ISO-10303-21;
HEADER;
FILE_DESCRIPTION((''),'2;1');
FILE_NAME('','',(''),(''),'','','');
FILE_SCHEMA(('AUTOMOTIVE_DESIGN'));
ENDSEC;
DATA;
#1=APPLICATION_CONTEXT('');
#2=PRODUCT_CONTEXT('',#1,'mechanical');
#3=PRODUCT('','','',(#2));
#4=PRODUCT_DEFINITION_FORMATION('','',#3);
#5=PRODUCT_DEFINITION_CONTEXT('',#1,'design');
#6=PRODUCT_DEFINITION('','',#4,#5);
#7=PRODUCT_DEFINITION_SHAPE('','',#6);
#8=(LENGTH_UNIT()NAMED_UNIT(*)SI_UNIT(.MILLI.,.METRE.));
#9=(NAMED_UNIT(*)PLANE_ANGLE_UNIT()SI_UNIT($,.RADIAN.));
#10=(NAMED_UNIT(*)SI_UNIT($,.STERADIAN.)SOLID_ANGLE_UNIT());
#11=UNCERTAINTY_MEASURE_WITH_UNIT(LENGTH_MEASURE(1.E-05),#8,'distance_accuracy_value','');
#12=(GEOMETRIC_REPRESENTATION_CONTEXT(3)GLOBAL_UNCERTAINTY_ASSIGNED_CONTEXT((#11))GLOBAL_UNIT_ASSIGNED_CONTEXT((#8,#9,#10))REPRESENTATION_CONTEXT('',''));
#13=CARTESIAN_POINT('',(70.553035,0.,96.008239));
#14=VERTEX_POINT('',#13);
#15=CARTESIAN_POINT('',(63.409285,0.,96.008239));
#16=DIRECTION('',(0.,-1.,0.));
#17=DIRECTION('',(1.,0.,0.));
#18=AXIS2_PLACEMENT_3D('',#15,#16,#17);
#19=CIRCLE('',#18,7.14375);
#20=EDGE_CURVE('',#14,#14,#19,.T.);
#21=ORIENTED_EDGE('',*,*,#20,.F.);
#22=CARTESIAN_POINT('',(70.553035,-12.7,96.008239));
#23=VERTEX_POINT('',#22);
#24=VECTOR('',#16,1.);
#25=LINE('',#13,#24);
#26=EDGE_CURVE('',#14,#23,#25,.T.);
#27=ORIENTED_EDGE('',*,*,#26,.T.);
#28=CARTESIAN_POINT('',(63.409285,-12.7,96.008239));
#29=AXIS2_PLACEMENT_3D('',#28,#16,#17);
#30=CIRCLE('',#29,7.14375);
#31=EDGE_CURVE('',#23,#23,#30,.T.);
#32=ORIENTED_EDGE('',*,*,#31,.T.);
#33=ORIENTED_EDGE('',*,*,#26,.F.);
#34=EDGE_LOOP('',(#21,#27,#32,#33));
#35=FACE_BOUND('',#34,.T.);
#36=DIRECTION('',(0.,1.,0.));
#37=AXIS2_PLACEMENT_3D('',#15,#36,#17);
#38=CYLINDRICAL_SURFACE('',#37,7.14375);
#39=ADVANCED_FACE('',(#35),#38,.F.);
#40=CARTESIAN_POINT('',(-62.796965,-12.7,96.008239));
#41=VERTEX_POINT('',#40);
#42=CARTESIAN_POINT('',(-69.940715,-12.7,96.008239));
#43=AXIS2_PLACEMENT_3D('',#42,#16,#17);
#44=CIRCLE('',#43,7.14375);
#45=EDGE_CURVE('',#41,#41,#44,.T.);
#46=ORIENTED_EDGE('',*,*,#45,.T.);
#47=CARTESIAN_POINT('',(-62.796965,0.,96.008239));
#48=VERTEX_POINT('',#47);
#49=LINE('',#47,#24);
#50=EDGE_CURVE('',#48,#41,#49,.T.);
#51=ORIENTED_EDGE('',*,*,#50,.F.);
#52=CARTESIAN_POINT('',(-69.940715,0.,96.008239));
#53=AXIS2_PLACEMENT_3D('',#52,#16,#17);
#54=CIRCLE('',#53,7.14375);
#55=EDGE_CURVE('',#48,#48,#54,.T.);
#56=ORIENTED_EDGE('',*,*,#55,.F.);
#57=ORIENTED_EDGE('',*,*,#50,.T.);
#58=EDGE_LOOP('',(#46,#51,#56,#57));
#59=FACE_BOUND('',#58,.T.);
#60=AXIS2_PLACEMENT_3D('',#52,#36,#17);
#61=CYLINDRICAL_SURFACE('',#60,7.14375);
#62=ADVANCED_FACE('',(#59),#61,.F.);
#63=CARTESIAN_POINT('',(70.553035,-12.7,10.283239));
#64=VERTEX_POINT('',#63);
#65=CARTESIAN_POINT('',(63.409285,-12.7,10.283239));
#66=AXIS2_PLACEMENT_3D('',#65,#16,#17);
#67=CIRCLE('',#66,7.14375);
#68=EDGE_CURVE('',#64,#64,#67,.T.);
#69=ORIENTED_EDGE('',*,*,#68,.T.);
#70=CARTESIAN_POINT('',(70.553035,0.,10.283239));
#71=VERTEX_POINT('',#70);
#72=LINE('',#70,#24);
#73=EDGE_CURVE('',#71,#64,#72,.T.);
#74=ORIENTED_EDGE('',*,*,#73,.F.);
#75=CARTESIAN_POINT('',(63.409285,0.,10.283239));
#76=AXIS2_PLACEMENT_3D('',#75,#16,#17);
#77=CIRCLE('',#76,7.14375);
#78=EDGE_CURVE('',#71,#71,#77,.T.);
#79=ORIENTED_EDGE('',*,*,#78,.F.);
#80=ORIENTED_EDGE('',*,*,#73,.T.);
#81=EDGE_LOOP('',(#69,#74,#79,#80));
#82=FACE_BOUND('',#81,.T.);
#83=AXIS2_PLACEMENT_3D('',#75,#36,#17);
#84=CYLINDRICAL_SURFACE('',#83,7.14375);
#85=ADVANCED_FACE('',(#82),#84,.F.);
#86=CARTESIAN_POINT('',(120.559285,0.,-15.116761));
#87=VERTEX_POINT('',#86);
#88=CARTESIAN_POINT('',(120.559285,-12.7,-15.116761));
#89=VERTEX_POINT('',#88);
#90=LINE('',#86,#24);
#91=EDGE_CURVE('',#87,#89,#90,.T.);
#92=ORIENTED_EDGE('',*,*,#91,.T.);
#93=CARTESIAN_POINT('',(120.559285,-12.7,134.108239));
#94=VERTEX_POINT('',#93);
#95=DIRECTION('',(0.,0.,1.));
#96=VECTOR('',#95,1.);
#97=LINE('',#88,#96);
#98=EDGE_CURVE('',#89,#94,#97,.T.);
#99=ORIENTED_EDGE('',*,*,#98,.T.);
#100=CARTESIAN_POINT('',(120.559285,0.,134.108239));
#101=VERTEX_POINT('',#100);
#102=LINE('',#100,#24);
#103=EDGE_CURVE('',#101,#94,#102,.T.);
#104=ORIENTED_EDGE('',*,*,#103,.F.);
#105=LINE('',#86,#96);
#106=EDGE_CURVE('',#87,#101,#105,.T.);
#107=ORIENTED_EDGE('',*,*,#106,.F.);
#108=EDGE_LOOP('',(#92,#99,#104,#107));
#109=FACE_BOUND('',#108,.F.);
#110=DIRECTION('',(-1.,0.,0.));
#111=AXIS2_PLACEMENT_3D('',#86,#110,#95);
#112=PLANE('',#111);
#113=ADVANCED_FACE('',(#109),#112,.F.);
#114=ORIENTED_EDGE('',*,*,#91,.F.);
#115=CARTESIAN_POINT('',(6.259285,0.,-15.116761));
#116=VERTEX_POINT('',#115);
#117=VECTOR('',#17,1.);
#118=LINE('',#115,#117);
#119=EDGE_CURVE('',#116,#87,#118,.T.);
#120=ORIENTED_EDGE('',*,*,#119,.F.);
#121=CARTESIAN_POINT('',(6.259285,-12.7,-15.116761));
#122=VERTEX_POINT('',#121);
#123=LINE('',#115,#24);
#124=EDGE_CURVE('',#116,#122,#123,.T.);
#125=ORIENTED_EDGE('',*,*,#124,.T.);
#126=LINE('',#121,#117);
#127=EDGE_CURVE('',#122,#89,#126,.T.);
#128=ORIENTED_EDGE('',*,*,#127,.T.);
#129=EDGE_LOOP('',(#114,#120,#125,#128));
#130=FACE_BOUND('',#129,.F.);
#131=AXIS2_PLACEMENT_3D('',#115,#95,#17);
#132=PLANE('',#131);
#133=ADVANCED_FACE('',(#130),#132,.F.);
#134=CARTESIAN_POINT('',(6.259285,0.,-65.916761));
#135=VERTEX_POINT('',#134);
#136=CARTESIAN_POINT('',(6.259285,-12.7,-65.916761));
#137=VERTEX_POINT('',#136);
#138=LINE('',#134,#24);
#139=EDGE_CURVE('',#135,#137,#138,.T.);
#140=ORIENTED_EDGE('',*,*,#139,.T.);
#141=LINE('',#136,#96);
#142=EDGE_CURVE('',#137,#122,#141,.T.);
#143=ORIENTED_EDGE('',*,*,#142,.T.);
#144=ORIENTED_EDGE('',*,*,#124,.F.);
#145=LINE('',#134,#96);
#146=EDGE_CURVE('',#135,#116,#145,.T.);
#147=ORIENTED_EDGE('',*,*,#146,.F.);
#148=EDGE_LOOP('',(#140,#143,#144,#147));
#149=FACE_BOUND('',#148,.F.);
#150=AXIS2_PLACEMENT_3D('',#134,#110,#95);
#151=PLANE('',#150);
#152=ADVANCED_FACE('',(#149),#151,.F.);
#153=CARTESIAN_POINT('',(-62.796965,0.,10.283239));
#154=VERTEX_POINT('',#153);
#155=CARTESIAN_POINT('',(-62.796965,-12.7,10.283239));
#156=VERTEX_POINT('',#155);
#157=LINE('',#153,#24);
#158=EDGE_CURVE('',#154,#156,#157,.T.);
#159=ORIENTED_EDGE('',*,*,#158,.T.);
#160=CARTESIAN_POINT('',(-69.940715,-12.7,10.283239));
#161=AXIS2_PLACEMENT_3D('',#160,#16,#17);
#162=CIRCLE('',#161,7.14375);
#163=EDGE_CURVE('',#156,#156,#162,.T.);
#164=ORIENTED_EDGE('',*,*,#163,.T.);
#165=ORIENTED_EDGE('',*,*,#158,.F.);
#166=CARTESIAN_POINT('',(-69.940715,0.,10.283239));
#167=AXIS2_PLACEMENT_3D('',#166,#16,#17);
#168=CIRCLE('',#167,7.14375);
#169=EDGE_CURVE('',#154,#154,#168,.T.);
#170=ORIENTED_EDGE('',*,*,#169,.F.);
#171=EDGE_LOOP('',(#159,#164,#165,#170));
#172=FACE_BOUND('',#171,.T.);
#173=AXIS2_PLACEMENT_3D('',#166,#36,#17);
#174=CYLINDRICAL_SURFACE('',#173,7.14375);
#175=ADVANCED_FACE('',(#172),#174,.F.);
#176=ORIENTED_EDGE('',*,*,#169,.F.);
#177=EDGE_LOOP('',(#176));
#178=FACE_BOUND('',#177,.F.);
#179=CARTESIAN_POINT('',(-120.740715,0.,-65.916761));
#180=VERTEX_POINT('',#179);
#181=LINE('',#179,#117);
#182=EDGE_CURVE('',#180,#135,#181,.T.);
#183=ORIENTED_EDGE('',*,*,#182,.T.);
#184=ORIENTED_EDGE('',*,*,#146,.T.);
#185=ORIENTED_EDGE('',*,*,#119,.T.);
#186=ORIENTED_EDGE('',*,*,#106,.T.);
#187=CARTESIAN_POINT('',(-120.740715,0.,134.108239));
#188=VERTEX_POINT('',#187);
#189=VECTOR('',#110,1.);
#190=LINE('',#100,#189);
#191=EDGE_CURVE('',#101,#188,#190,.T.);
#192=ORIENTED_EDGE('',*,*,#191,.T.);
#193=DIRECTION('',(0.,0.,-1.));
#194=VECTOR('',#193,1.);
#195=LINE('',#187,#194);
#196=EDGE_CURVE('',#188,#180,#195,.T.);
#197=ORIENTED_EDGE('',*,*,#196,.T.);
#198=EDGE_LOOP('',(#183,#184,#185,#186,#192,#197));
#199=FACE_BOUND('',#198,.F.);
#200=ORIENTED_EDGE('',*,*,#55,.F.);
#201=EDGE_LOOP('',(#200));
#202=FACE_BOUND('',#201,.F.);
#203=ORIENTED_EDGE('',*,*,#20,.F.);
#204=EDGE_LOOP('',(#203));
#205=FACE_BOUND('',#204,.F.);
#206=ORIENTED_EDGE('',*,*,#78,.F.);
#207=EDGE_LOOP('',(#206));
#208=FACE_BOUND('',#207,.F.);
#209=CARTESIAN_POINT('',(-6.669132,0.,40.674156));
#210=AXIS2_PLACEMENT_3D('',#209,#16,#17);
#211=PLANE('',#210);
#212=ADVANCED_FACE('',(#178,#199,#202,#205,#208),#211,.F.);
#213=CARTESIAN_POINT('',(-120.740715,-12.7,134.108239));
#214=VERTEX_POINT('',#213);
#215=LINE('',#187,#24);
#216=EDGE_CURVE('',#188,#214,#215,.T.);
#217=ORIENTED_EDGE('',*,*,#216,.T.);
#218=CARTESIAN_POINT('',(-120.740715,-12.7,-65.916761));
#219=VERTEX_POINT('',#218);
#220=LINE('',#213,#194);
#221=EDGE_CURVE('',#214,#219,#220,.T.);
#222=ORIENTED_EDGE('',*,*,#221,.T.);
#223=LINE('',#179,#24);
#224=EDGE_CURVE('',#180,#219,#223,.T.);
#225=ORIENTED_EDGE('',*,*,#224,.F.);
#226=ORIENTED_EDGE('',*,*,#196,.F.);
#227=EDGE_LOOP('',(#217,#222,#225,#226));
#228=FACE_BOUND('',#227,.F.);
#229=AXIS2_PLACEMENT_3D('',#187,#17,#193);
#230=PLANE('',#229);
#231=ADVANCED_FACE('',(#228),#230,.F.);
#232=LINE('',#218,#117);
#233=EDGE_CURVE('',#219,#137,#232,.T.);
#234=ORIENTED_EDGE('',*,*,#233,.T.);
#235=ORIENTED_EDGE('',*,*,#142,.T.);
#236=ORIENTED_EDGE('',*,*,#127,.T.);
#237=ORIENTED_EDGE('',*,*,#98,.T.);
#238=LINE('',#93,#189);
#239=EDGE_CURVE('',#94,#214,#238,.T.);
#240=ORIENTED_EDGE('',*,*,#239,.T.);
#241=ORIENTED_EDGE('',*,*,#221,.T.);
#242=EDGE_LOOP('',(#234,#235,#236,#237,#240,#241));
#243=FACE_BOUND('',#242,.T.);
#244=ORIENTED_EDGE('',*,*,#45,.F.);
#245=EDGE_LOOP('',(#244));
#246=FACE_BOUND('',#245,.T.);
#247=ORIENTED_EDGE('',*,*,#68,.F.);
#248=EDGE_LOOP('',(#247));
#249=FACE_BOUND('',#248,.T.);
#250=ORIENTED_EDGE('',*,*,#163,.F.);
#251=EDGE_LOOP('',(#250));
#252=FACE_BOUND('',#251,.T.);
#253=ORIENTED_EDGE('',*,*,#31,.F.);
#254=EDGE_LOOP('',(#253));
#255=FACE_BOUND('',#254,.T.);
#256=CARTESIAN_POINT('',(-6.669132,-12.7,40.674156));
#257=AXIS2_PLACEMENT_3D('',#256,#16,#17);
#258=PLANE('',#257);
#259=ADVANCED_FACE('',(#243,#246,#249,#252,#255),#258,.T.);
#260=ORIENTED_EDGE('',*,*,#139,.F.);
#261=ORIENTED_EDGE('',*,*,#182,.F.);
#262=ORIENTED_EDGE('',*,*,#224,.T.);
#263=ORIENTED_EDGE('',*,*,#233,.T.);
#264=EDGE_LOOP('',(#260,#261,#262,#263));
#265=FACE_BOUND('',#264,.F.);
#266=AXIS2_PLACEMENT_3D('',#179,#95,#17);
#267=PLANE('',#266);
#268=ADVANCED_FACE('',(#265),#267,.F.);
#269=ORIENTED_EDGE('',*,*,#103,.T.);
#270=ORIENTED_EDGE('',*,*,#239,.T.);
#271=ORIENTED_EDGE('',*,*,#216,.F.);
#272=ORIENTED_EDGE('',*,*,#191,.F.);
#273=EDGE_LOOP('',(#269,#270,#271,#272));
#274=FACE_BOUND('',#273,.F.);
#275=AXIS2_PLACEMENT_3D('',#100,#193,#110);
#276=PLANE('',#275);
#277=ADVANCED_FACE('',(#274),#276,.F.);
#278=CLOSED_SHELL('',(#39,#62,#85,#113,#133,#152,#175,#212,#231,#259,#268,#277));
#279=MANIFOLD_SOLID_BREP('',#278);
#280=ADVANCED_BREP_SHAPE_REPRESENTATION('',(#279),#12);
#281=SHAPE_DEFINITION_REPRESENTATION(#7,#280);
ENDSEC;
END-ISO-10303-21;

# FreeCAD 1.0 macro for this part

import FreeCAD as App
import Part
import Sketcher
from FreeCAD import Vector
Q = App.Units.Quantity


def add_polygon(sketch, points):
    """Adds a closed chain of lines whose ends are joined by coincident constraints."""
    first, n = sketch.GeometryCount, len(points)
    for a, b in zip(points, points[1:] + points[:1]):
        sketch.addGeometry(Part.LineSegment(App.Vector(*a, 0), App.Vector(*b, 0)), False)
    for i in range(n):
        sketch.addConstraint(Sketcher.Constraint("Coincident", first + i, 2, first + (i + 1) % n, 1))

doc = App.newDocument("Part")
body = doc.addObject("PartDesign::Body", "Body")

sketch1 = body.newObject("Sketcher::SketchObject", "Sketch")
sketch1.AttachmentSupport = (doc.getObject("XZ_Plane"), [""])
sketch1.MapMode = "FlatFace"
add_polygon(sketch1, [(121, 134), (-121, 134), (-121, -66), (6, -66), (6, -15), (121, -15)])
sketch1.addGeometry(Part.Circle(Vector(-70, 10, 0), Vector(0, 0, 1), 7), False)
sketch1.addGeometry(Part.Circle(Vector(63, 10, 0), Vector(0, 0, 1), 7), False)
sketch1.addGeometry(Part.Circle(Vector(-70, 96, 0), Vector(0, 0, 1), 7), False)
sketch1.addGeometry(Part.Circle(Vector(63, 96, 0), Vector(0, 0, 1), 7), False)
sketch1.addConstraint([
    Sketcher.Constraint("Horizontal", 0),
    Sketcher.Constraint("Vertical", 1),
    Sketcher.Constraint("Horizontal", 2),
    Sketcher.Constraint("Vertical", 3),
    Sketcher.Constraint("Horizontal", 4),
    Sketcher.Constraint("Vertical", 5),
    Sketcher.Constraint("Equal", 6, 7),
    Sketcher.Constraint("Equal", 7, 8),
    Sketcher.Constraint("Equal", 8, 9),
    Sketcher.Constraint("Horizontal", 6, 3, 7, 3),
    Sketcher.Constraint("Horizontal", 8, 3, 9, 3),
    Sketcher.Constraint("Vertical", 6, 3, 8, 3),
    Sketcher.Constraint("Vertical", 7, 3, 9, 3),
    Sketcher.Constraint("DistanceX", 2, 1, 2, 2, Q("5 in")),
    Sketcher.Constraint("DistanceY", 3, 1, 3, 2, Q("2 in")),
    Sketcher.Constraint("Diameter", 6, Q("0.5625 in")),
    Sketcher.Constraint("DistanceX", 0, 2, 0, 1, Q("9.5 in")),
    Sketcher.Constraint("DistanceX", 0, 2, 8, 3, Q("2 in")),
    Sketcher.Constraint("DistanceY", 1, 2, 6, 3, Q("3 in")),
    Sketcher.Constraint("DistanceY", 8, 3, 0, 2, Q("1.5 in")),
    Sketcher.Constraint("DistanceY", 1, 2, 1, 1, Q("7.875 in")),
    Sketcher.Constraint("DistanceX", 6, 3, 7, 3, Q("5.25 in")),
    Sketcher.Constraint("DistanceY", -1, 1, 6, 3, 10.283239),
    Sketcher.Constraint("DistanceX", 6, 3, -1, 1, 69.940715),
])
pad1 = body.newObject("PartDesign::Pad", "Pad")
pad1.Profile = sketch1
pad1.Length = Q("0.5 in")

doc.recompute()
